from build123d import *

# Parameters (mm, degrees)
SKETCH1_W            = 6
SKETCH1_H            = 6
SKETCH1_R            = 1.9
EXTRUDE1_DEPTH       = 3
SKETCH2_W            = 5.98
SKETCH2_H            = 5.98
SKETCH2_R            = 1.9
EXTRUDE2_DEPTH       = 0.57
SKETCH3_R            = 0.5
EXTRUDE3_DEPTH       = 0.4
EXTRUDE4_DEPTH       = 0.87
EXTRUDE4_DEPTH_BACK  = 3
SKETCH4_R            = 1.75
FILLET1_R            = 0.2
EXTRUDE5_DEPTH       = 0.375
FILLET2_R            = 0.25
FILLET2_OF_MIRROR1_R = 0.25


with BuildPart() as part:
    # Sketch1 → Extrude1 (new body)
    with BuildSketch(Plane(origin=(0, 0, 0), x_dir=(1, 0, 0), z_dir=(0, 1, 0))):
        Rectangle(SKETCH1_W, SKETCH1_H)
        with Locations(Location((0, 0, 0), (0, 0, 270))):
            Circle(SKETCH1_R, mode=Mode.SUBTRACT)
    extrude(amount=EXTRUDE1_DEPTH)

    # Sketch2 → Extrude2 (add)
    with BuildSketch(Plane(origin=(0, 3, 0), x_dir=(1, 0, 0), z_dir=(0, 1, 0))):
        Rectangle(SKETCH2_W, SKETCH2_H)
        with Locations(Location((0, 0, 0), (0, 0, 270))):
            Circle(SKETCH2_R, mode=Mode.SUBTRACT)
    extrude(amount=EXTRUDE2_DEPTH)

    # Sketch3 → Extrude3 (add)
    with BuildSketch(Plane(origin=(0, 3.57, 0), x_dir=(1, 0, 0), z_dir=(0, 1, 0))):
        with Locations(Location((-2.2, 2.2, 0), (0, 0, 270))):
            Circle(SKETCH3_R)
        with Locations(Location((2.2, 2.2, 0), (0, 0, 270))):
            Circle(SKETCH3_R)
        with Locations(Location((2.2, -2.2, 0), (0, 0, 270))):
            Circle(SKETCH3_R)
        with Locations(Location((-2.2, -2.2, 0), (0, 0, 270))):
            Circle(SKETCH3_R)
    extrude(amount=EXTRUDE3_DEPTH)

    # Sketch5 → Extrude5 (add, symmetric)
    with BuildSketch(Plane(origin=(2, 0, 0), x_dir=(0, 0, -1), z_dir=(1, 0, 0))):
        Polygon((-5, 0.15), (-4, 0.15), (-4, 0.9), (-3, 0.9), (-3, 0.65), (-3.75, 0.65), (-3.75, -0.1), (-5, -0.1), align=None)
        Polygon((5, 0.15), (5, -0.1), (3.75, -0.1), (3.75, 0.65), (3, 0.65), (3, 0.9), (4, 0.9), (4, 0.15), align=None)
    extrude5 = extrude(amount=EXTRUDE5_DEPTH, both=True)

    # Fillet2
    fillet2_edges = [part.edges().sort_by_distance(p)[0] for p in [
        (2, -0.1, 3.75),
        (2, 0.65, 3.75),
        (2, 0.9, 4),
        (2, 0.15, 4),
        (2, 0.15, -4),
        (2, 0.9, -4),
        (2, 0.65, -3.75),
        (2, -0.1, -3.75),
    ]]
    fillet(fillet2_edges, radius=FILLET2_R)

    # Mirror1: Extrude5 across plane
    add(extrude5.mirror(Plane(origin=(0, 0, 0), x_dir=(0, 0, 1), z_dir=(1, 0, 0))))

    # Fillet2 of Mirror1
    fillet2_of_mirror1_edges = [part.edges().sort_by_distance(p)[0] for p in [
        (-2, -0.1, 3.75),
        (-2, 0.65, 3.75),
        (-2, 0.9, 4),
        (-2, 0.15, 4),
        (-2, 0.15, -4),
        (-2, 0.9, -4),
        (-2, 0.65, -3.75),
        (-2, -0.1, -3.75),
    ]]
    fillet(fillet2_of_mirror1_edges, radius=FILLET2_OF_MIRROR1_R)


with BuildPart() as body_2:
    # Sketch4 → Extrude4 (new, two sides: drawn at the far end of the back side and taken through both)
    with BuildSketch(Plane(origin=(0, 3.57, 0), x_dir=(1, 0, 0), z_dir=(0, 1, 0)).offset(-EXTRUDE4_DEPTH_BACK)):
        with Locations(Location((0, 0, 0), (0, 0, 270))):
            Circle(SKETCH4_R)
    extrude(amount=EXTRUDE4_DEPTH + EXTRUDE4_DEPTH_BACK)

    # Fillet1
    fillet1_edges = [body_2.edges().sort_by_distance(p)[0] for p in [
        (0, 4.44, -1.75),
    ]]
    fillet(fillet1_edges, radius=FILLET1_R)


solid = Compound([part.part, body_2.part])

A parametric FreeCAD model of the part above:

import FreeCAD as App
import Part
import Sketcher

V = App.Vector


def edges_at(feature, points):
    """Names of the edges that pass closest to the given points."""
    edges = feature.Shape.Edges
    near = lambda p: min(range(len(edges)), key=lambda i: edges[i].distToShape(Part.Vertex(*p))[0])
    return sorted({f"Edge{near(p) + 1}" for p in points})

doc = App.newDocument("Part")
body = doc.addObject("PartDesign::Body", "Body")

sketch1 = body.newObject("Sketcher::SketchObject", "Sketch")
sketch1.AttachmentSupport = (doc.getObject("XZ_Plane"), [""])
sketch1.MapMode = "FlatFace"
sketch1.addGeometry([
    Part.LineSegment(V(-3, -3, 0), V(-3, 3, 0)),
    Part.LineSegment(V(-3, 3, 0), V(3, 3, 0)),
    Part.LineSegment(V(3, 3, 0), V(3, -3, 0)),
    Part.LineSegment(V(3, -3, 0), V(-3, -3, 0)),
    Part.Circle(V(0, 0, 0), V(0, 0, 1), 1.9),
], False)
sketch1.addConstraint([
    Sketcher.Constraint("Coincident", 0, 2, 1, 1),
    Sketcher.Constraint("Coincident", 1, 2, 2, 1),
    Sketcher.Constraint("Coincident", 2, 2, 3, 1),
    Sketcher.Constraint("Coincident", 3, 2, 0, 1),
    Sketcher.Constraint("Vertical", 0),
    Sketcher.Constraint("Horizontal", 1),
    Sketcher.Constraint("Vertical", 2),
    Sketcher.Constraint("Horizontal", 3),
    Sketcher.Constraint("Coincident", 4, 3, -1, 1),
    Sketcher.Constraint("Symmetric", 0, 2, 2, 2, -1, 1),
    Sketcher.Constraint("Equal", 3, 0),
    Sketcher.Constraint("Diameter", 4, 3.8),
    Sketcher.Constraint("DistanceX", 1, 1, 1, 2, 6.0),
])
pad1 = body.newObject("PartDesign::Pad", "Pad")
pad1.Profile = sketch1
pad1.Length = 3
pad1.Reversed = True

sketch2 = body.newObject("Sketcher::SketchObject", "Sketch001")
sketch2.AttachmentSupport = (doc.getObject("XZ_Plane"), [""])
sketch2.MapMode = "FlatFace"
sketch2.AttachmentOffset = App.Placement(V(0, 0, -3), App.Rotation())
sketch2.addGeometry([
    Part.LineSegment(V(-2.99, -2.99, 0), V(-2.99, 2.99, 0)),
    Part.LineSegment(V(-2.99, 2.99, 0), V(2.99, 2.99, 0)),
    Part.LineSegment(V(2.99, 2.99, 0), V(2.99, -2.99, 0)),
    Part.LineSegment(V(2.99, -2.99, 0), V(-2.99, -2.99, 0)),
    Part.Circle(V(0, 0, 0), V(0, 0, 1), 1.9),
], False)
sketch2.addConstraint([
    Sketcher.Constraint("Coincident", 0, 2, 1, 1),
    Sketcher.Constraint("Coincident", 1, 2, 2, 1),
    Sketcher.Constraint("Coincident", 2, 2, 3, 1),
    Sketcher.Constraint("Coincident", 3, 2, 0, 1),
    Sketcher.Constraint("Vertical", 0),
    Sketcher.Constraint("Horizontal", 1),
    Sketcher.Constraint("Vertical", 2),
    Sketcher.Constraint("Horizontal", 3),
    Sketcher.Constraint("Coincident", 4, 3, -1, 1),
    Sketcher.Constraint("Symmetric", 0, 2, 2, 2, -1, 1),
    Sketcher.Constraint("Equal", 3, 0),
    Sketcher.Constraint("Diameter", 4, 3.8),
    Sketcher.Constraint("DistanceX", 1, 1, 1, 2, 5.98),
])
pad2 = body.newObject("PartDesign::Pad", "Pad001")
pad2.Profile = sketch2
pad2.Length = 0.57
pad2.Reversed = True

sketch3 = body.newObject("Sketcher::SketchObject", "Sketch002")
sketch3.AttachmentSupport = (doc.getObject("XZ_Plane"), [""])
sketch3.MapMode = "FlatFace"
sketch3.AttachmentOffset = App.Placement(V(0, 0, -3.57), App.Rotation())
sketch3.addGeometry([
    Part.Circle(V(-2.2, -2.2, 0), V(0, 0, 1), 0.5),
    Part.Circle(V(2.2, -2.2, 0), V(0, 0, 1), 0.5),
    Part.Circle(V(2.2, 2.2, 0), V(0, 0, 1), 0.5),
    Part.Circle(V(-2.2, 2.2, 0), V(0, 0, 1), 0.5),
], False)
sketch3.addConstraint([
    Sketcher.Constraint("Equal", 0, 1),
    Sketcher.Constraint("Equal", 1, 2),
    Sketcher.Constraint("Equal", 2, 3),
    Sketcher.Constraint("Symmetric", 0, 3, 2, 3, -1, 1),
    Sketcher.Constraint("Symmetric", 1, 3, 3, 3, -1, 1),
    Sketcher.Constraint("Symmetric", 0, 3, 1, 3, -2),
    Sketcher.Constraint("Diameter", 0, 1.0),
    Sketcher.Constraint("DistanceX", 0, 3, -1, 1, 2.2),
    Sketcher.Constraint("DistanceY", 0, 3, -1, 1, 2.2),
])
pad3 = body.newObject("PartDesign::Pad", "Pad002")
pad3.Profile = sketch3
pad3.Length = 0.4
pad3.Reversed = True

sketch4 = body.newObject("Sketcher::SketchObject", "Sketch003")
sketch4.AttachmentSupport = (doc.getObject("YZ_Plane"), [""])
sketch4.MapMode = "FlatFace"
sketch4.AttachmentOffset = App.Placement(V(0, 0, 2), App.Rotation())
sketch4.addGeometry([
    Part.LineSegment(V(0.15, 4, 0), V(0.15, 5, 0)),
    Part.LineSegment(V(0.15, 5, 0), V(-0.1, 5, 0)),
    Part.LineSegment(V(-0.1, 5, 0), V(-0.1, 3.75, 0)),
    Part.LineSegment(V(-0.1, 3.75, 0), V(0.65, 3.75, 0)),
    Part.LineSegment(V(0.65, 3.75, 0), V(0.65, 3, 0)),
    Part.LineSegment(V(0.65, 3, 0), V(0.9, 3, 0)),
    Part.LineSegment(V(0.9, 3, 0), V(0.9, 4, 0)),
    Part.LineSegment(V(0.9, 4, 0), V(0.15, 4, 0)),
    Part.LineSegment(V(-0.1, -5, 0), V(0.15, -5, 0)),
    Part.LineSegment(V(0.15, -5, 0), V(0.15, -4, 0)),
    Part.LineSegment(V(0.15, -4, 0), V(0.9, -4, 0)),
    Part.LineSegment(V(0.9, -4, 0), V(0.9, -3, 0)),
    Part.LineSegment(V(0.9, -3, 0), V(0.65, -3, 0)),
    Part.LineSegment(V(0.65, -3, 0), V(0.65, -3.75, 0)),
    Part.LineSegment(V(0.65, -3.75, 0), V(-0.1, -3.75, 0)),
    Part.LineSegment(V(-0.1, -3.75, 0), V(-0.1, -5, 0)),
], False)
sketch4.addConstraint([
    Sketcher.Constraint("Coincident", 0, 2, 1, 1),
    Sketcher.Constraint("Coincident", 1, 2, 2, 1),
    Sketcher.Constraint("Coincident", 2, 2, 3, 1),
    Sketcher.Constraint("Coincident", 3, 2, 4, 1),
    Sketcher.Constraint("Coincident", 4, 2, 5, 1),
    Sketcher.Constraint("Coincident", 5, 2, 6, 1),
    Sketcher.Constraint("Coincident", 6, 2, 7, 1),
    Sketcher.Constraint("Coincident", 7, 2, 0, 1),
    Sketcher.Constraint("Coincident", 8, 2, 9, 1),
    Sketcher.Constraint("Coincident", 9, 2, 10, 1),
    Sketcher.Constraint("Coincident", 10, 2, 11, 1),
    Sketcher.Constraint("Coincident", 11, 2, 12, 1),
    Sketcher.Constraint("Coincident", 12, 2, 13, 1),
    Sketcher.Constraint("Coincident", 13, 2, 14, 1),
    Sketcher.Constraint("Coincident", 14, 2, 15, 1),
    Sketcher.Constraint("Coincident", 15, 2, 8, 1),
    Sketcher.Constraint("Vertical", 0),
    Sketcher.Constraint("Horizontal", 1),
    Sketcher.Constraint("Vertical", 2),
    Sketcher.Constraint("Horizontal", 3),
    Sketcher.Constraint("Vertical", 4),
    Sketcher.Constraint("Horizontal", 5),
    Sketcher.Constraint("Vertical", 6),
    Sketcher.Constraint("Horizontal", 7),
    Sketcher.Constraint("Horizontal", 8),
    Sketcher.Constraint("Vertical", 9),
    Sketcher.Constraint("Horizontal", 10),
    Sketcher.Constraint("Vertical", 11),
    Sketcher.Constraint("Horizontal", 12),
    Sketcher.Constraint("Vertical", 13),
    Sketcher.Constraint("Horizontal", 14),
    Sketcher.Constraint("Vertical", 15),
    Sketcher.Constraint("Symmetric", 0, 2, 8, 2, -1),
    Sketcher.Constraint("Symmetric", 6, 2, 10, 2, -1),
    Sketcher.Constraint("Symmetric", 4, 2, 12, 2, -1),
    Sketcher.Constraint("Symmetric", 2, 2, 14, 2, -1),
    Sketcher.Constraint("Equal", 1, 5),
    Sketcher.Constraint("Equal", 14, 4),
    Sketcher.Constraint("Equal", 0, 6),
    Sketcher.Constraint("DistanceY", 0, 1, 0, 2, 1.0),
    Sketcher.Constraint("DistanceY", -1, 1, 0, 2, 5.0),
    Sketcher.Constraint("DistanceX", 2, 2, 5, 2, 1.0),
    Sketcher.Constraint("DistanceX", 1, 2, 1, 1, 0.25),
    Sketcher.Constraint("DistanceX", 1, 2, -1, 1, 0.1),
])
pad4 = body.newObject("PartDesign::Pad", "Pad003")
pad4.Profile = sketch4
pad4.Length = 0.75
pad4.Midplane = True
doc.recompute()

fillet = body.newObject("PartDesign::Fillet", "Fillet")
fillet.Base = (pad4, edges_at(pad4, [
    (2, -0.1, 3.75),
    (2, 0.65, 3.75),
    (2, 0.9, 4),
    (2, 0.15, 4),
    (2, 0.15, -4),
    (2, 0.9, -4),
    (2, 0.65, -3.75),
    (2, -0.1, -3.75),
]))
fillet.Radius = 0.25
doc.recompute()

mirrored = body.newObject("PartDesign::Mirrored", "Mirrored")
mirrored.Originals = [pad4]
mirrored.MirrorPlane = (doc.getObject("YZ_Plane"), [""])
body.Tip = mirrored
doc.recompute()

fillet2 = body.newObject("PartDesign::Fillet", "Fillet001")
fillet2.Base = (mirrored, edges_at(mirrored, [
    (-2, -0.1, 3.75),
    (-2, 0.65, 3.75),
    (-2, 0.9, 4),
    (-2, 0.15, 4),
    (-2, 0.15, -4),
    (-2, 0.9, -4),
    (-2, 0.65, -3.75),
    (-2, -0.1, -3.75),
]))
fillet2.Radius = 0.25
body2 = doc.addObject("PartDesign::Body", "Body001")

sketch5 = body2.newObject("Sketcher::SketchObject", "Sketch004")
sketch5.AttachmentSupport = (doc.getObject("XZ_Plane001"), [""])
sketch5.MapMode = "FlatFace"
sketch5.AttachmentOffset = App.Placement(V(0, 0, -3.57), App.Rotation())
sketch5.addGeometry(Part.Circle(V(0, 0, 0), V(0, 0, 1), 1.75), False)
sketch5.addConstraint([
    Sketcher.Constraint("Coincident", 0, 3, -1, 1),
    Sketcher.Constraint("Diameter", 0, 3.5),
])
pad5 = body2.newObject("PartDesign::Pad", "Pad004")
pad5.Profile = sketch5
pad5.Type = "TwoLengths"
pad5.Length = 0.87
pad5.Length2 = 3
pad5.Reversed = True
doc.recompute()

fillet3 = body2.newObject("PartDesign::Fillet", "Fillet002")
fillet3.Base = (pad5, edges_at(pad5, [(0, 4.44, -1.75)]))
fillet3.Radius = 0.2

doc.recompute()
